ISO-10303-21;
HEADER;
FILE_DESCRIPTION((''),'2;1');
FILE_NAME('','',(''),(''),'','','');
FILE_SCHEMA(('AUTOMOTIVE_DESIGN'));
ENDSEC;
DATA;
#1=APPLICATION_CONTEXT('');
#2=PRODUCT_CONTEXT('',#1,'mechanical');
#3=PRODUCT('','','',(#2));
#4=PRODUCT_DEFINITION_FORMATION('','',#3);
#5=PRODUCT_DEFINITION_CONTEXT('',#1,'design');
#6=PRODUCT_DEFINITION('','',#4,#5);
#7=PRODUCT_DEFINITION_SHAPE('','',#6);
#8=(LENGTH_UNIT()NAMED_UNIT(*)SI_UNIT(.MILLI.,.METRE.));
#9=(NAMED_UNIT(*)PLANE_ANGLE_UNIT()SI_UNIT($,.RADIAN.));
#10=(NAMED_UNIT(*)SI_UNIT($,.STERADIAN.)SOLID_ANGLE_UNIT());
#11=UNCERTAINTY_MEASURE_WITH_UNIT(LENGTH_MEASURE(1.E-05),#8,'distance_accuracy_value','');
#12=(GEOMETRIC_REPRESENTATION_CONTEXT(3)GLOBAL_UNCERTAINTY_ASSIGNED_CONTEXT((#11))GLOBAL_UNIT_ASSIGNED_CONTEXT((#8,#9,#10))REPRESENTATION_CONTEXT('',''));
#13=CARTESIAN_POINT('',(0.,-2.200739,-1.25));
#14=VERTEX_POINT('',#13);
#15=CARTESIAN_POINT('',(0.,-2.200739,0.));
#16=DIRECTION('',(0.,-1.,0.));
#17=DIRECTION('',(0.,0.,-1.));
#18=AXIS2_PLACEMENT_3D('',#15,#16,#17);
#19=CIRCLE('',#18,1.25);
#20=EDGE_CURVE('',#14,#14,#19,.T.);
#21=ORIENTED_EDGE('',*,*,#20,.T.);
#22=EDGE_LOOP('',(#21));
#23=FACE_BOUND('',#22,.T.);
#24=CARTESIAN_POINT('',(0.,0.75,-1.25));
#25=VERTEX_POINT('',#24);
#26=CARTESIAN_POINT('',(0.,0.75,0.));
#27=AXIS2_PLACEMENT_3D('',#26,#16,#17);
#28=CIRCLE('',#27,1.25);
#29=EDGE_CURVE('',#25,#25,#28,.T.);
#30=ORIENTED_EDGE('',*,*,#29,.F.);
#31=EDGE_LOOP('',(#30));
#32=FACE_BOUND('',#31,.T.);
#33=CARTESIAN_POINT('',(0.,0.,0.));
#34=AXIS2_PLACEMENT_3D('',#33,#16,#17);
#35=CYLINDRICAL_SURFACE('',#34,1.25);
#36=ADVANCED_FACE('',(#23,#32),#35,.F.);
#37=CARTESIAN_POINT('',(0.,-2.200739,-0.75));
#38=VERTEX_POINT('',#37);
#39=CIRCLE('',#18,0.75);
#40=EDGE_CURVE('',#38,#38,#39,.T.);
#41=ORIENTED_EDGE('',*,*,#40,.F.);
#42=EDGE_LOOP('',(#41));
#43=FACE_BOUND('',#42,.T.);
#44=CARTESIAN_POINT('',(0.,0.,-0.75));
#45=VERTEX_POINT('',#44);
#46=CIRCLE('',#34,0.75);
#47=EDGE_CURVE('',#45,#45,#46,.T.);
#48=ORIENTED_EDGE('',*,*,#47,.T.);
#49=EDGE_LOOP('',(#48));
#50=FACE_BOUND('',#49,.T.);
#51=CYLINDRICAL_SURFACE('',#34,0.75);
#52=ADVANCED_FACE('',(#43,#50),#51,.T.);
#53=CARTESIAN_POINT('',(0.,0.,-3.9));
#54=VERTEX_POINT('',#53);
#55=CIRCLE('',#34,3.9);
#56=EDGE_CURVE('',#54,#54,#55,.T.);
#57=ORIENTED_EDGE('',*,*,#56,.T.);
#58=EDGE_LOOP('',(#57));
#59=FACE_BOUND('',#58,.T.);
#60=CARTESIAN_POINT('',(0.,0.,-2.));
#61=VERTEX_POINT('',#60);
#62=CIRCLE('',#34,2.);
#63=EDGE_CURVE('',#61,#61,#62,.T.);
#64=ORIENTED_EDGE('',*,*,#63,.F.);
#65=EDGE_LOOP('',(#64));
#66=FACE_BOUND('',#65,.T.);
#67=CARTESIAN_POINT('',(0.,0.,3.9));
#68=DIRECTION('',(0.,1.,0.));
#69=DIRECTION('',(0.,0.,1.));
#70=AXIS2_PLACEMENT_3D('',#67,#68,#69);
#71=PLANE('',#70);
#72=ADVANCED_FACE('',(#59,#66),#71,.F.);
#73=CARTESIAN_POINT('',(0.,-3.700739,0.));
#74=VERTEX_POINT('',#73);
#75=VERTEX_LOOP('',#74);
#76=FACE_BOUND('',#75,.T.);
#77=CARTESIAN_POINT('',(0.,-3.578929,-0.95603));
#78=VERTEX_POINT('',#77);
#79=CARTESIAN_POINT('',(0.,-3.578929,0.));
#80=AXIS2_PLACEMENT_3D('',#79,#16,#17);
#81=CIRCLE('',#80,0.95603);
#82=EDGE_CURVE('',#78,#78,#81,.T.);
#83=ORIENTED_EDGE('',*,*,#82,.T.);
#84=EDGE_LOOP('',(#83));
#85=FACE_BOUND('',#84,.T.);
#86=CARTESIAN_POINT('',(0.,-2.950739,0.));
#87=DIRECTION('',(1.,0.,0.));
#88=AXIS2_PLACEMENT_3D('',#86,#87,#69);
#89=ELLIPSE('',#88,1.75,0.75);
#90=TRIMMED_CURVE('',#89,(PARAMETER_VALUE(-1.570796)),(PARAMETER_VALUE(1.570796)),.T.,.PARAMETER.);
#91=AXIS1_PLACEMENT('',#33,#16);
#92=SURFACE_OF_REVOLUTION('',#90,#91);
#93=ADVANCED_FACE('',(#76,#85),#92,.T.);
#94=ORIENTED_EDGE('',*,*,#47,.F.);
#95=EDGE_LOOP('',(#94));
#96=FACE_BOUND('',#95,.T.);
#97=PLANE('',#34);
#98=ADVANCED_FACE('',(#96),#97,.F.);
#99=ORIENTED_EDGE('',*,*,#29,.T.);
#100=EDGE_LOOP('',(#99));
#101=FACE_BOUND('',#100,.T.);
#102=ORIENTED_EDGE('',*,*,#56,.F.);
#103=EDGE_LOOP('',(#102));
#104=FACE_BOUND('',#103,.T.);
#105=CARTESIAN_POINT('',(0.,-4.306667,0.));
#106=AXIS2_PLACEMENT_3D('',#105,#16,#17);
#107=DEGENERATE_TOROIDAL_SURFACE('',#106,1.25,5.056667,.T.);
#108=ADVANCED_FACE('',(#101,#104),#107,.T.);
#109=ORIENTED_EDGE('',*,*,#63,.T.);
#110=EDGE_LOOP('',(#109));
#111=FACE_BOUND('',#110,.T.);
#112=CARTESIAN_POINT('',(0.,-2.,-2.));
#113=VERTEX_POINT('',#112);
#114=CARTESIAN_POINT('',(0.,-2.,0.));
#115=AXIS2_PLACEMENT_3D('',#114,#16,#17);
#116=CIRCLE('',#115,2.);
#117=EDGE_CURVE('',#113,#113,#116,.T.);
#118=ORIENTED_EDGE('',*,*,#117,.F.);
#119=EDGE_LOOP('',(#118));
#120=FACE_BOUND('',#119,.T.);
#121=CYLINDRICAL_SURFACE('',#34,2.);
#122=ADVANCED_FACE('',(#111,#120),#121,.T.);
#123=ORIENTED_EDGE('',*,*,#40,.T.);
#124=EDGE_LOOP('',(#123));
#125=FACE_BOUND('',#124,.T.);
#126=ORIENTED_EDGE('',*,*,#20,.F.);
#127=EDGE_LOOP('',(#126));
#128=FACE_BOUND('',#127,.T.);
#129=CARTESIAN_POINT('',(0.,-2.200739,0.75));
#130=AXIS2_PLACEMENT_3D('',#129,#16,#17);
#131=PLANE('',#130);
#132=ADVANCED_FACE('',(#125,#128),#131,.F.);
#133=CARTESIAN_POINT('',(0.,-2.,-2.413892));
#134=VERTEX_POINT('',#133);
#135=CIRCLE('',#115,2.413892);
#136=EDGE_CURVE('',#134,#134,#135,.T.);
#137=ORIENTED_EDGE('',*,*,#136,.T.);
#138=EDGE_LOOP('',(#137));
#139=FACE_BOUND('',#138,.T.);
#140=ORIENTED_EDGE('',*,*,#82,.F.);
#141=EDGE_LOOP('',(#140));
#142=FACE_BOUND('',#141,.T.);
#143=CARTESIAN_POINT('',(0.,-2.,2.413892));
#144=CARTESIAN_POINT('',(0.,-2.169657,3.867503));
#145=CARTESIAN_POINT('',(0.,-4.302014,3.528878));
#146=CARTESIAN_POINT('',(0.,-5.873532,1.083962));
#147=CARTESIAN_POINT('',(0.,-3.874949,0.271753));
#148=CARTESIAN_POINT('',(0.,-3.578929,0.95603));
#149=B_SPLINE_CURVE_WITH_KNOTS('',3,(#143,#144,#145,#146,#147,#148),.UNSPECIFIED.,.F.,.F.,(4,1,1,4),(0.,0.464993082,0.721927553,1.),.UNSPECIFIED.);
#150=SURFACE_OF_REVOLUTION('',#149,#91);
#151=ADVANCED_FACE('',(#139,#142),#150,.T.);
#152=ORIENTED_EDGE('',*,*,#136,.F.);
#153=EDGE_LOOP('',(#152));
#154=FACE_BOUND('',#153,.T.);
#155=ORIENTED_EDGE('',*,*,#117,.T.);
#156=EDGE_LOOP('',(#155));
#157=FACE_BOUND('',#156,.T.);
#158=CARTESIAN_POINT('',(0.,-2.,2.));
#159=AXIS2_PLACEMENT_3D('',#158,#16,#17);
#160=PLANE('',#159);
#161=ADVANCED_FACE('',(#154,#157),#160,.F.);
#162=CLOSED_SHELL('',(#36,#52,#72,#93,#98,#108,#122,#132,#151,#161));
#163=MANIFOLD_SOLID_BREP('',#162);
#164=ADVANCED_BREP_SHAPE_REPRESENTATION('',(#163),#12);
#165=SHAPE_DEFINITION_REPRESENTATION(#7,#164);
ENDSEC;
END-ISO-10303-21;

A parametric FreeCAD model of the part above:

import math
import FreeCAD as App
import Part
import Sketcher
Q = App.Units.Quantity

doc = App.newDocument("Part")
body = doc.addObject("PartDesign::Body", "Body")

# Sketch on YZ plane
sketch1 = doc.addObject("Sketcher::SketchObject", "Sketch")
body.addObject(sketch1)
sketch1.AttachmentSupport = (doc.YZ_Plane, [""])
sketch1.MapMode = "FlatFace"
sketch1.addGeometry(Part.LineSegment(App.Vector(0, 0, 0), App.Vector(0, 0.75, 0)), False)
sketch1.addGeometry(Part.LineSegment(App.Vector(0, 0.75, 0), App.Vector(-2.200739, 0.75, 0)), False)
sketch1.addGeometry(Part.LineSegment(App.Vector(-2.200739, 0.75, 0), App.Vector(-2.200739, 1.25, 0)), False)
sketch1.addGeometry(Part.LineSegment(App.Vector(-2.200739, 1.25, 0), App.Vector(0.75, 1.25, 0)), False)
sketch1.addGeometry(Part.ArcOfCircle(Part.Circle(App.Vector(-4.306667, 1.25, 0), App.Vector(0, 0, 1), 5.056667), math.radians(0), math.radians(31.605028)), False)
sketch1.addGeometry(Part.LineSegment(App.Vector(0, 3.9, 0), App.Vector(0, 2, 0)), False)
sketch1.addGeometry(Part.LineSegment(App.Vector(0, 2, 0), App.Vector(-2, 2, 0)), False)
sketch1.addGeometry(Part.LineSegment(App.Vector(-2, 2, 0), App.Vector(-2, 2.413892, 0)), False)
sketch1.addGeometry(Part.BSplineCurve([App.Vector(-2, 2.413892, 0), App.Vector(-2.169657, 3.867503, 0), App.Vector(-4.302014, 3.528878, 0), App.Vector(-5.873532, 1.083962, 0), App.Vector(-3.874949, 0.271753, 0), App.Vector(-3.578929, 0.95603, 0)], [4, 1, 1, 4], [0, 0.464993082, 0.721927553, 1], False, 3, [1, 1, 1, 1, 1, 1], False), False)
sketch1.addGeometry(Part.BSplineCurve([App.Vector(-3.578929, 0.95603, 0), App.Vector(-3.700739, 0.520264, 0), App.Vector(-3.700739, 0, 0)], [3, 3], [0.992852221, 1.570796327], False, 2, [1, 0.958537313, 1], False), False)
sketch1.addGeometry(Part.LineSegment(App.Vector(-3.700739, 0, 0), App.Vector(0, 0, 0)), False)
sketch1.addConstraint(Sketcher.Constraint("Block", 8))
sketch1.addConstraint(Sketcher.Constraint("Block", 9))
sketch1.addConstraint(Sketcher.Constraint("Coincident", 0, 2, 1, 1))
sketch1.addConstraint(Sketcher.Constraint("Coincident", 1, 2, 2, 1))
sketch1.addConstraint(Sketcher.Constraint("Coincident", 2, 2, 3, 1))
sketch1.addConstraint(Sketcher.Constraint("Coincident", 3, 2, 4, 1))
sketch1.addConstraint(Sketcher.Constraint("Coincident", 4, 2, 5, 1))
sketch1.addConstraint(Sketcher.Constraint("Coincident", 5, 2, 6, 1))
sketch1.addConstraint(Sketcher.Constraint("Coincident", 6, 2, 7, 1))
sketch1.addConstraint(Sketcher.Constraint("Coincident", 7, 2, 8, 1))
sketch1.addConstraint(Sketcher.Constraint("Coincident", 9, 2, 10, 1))
sketch1.addConstraint(Sketcher.Constraint("Coincident", 10, 2, 0, 1))
sketch1.addConstraint(Sketcher.Constraint("Vertical", 0))
sketch1.addConstraint(Sketcher.Constraint("Horizontal", 1))
sketch1.addConstraint(Sketcher.Constraint("Vertical", 2))
sketch1.addConstraint(Sketcher.Constraint("Horizontal", 3))
sketch1.addConstraint(Sketcher.Constraint("Vertical", 5))
sketch1.addConstraint(Sketcher.Constraint("Horizontal", 6))
sketch1.addConstraint(Sketcher.Constraint("Vertical", 7))
sketch1.addConstraint(Sketcher.Constraint("Horizontal", 10))
sketch1.addConstraint(Sketcher.Constraint("PointOnObject", 0, 2, -2))
sketch1.addConstraint(Sketcher.Constraint("PointOnObject", 4, 2, -2))
sketch1.addConstraint(Sketcher.Constraint("Horizontal", 4, 3, 2, 2))
sketch1.addConstraint(Sketcher.Constraint("DistanceY", 2, 1, 2, 2, Q("0.5 mm")))
sketch1.addConstraint(Sketcher.Constraint("DistanceY", 5, 2, 5, 1, Q("1.9 mm")))
sketch1.addConstraint(Sketcher.Constraint("DistanceY", -1, 1, 5, 2, Q("2 mm")))
sketch1.addConstraint(Sketcher.Constraint("DistanceY", 0, 1, 0, 2, Q("0.75 mm")))
sketch1.addConstraint(Sketcher.Constraint("DistanceX", -1, 1, 3, 2, Q("0.75 mm")))
sketch1.addConstraint(Sketcher.Constraint("DistanceX", 1, 2, 1, 1, Q("2.200739 mm")))
revolution = doc.addObject("PartDesign::Revolution", "Revolution")
body.addObject(revolution)
revolution.Profile = sketch1
revolution.ReferenceAxis = (sketch1, ["H_Axis"])
revolution.Angle = 360

doc.recompute()
